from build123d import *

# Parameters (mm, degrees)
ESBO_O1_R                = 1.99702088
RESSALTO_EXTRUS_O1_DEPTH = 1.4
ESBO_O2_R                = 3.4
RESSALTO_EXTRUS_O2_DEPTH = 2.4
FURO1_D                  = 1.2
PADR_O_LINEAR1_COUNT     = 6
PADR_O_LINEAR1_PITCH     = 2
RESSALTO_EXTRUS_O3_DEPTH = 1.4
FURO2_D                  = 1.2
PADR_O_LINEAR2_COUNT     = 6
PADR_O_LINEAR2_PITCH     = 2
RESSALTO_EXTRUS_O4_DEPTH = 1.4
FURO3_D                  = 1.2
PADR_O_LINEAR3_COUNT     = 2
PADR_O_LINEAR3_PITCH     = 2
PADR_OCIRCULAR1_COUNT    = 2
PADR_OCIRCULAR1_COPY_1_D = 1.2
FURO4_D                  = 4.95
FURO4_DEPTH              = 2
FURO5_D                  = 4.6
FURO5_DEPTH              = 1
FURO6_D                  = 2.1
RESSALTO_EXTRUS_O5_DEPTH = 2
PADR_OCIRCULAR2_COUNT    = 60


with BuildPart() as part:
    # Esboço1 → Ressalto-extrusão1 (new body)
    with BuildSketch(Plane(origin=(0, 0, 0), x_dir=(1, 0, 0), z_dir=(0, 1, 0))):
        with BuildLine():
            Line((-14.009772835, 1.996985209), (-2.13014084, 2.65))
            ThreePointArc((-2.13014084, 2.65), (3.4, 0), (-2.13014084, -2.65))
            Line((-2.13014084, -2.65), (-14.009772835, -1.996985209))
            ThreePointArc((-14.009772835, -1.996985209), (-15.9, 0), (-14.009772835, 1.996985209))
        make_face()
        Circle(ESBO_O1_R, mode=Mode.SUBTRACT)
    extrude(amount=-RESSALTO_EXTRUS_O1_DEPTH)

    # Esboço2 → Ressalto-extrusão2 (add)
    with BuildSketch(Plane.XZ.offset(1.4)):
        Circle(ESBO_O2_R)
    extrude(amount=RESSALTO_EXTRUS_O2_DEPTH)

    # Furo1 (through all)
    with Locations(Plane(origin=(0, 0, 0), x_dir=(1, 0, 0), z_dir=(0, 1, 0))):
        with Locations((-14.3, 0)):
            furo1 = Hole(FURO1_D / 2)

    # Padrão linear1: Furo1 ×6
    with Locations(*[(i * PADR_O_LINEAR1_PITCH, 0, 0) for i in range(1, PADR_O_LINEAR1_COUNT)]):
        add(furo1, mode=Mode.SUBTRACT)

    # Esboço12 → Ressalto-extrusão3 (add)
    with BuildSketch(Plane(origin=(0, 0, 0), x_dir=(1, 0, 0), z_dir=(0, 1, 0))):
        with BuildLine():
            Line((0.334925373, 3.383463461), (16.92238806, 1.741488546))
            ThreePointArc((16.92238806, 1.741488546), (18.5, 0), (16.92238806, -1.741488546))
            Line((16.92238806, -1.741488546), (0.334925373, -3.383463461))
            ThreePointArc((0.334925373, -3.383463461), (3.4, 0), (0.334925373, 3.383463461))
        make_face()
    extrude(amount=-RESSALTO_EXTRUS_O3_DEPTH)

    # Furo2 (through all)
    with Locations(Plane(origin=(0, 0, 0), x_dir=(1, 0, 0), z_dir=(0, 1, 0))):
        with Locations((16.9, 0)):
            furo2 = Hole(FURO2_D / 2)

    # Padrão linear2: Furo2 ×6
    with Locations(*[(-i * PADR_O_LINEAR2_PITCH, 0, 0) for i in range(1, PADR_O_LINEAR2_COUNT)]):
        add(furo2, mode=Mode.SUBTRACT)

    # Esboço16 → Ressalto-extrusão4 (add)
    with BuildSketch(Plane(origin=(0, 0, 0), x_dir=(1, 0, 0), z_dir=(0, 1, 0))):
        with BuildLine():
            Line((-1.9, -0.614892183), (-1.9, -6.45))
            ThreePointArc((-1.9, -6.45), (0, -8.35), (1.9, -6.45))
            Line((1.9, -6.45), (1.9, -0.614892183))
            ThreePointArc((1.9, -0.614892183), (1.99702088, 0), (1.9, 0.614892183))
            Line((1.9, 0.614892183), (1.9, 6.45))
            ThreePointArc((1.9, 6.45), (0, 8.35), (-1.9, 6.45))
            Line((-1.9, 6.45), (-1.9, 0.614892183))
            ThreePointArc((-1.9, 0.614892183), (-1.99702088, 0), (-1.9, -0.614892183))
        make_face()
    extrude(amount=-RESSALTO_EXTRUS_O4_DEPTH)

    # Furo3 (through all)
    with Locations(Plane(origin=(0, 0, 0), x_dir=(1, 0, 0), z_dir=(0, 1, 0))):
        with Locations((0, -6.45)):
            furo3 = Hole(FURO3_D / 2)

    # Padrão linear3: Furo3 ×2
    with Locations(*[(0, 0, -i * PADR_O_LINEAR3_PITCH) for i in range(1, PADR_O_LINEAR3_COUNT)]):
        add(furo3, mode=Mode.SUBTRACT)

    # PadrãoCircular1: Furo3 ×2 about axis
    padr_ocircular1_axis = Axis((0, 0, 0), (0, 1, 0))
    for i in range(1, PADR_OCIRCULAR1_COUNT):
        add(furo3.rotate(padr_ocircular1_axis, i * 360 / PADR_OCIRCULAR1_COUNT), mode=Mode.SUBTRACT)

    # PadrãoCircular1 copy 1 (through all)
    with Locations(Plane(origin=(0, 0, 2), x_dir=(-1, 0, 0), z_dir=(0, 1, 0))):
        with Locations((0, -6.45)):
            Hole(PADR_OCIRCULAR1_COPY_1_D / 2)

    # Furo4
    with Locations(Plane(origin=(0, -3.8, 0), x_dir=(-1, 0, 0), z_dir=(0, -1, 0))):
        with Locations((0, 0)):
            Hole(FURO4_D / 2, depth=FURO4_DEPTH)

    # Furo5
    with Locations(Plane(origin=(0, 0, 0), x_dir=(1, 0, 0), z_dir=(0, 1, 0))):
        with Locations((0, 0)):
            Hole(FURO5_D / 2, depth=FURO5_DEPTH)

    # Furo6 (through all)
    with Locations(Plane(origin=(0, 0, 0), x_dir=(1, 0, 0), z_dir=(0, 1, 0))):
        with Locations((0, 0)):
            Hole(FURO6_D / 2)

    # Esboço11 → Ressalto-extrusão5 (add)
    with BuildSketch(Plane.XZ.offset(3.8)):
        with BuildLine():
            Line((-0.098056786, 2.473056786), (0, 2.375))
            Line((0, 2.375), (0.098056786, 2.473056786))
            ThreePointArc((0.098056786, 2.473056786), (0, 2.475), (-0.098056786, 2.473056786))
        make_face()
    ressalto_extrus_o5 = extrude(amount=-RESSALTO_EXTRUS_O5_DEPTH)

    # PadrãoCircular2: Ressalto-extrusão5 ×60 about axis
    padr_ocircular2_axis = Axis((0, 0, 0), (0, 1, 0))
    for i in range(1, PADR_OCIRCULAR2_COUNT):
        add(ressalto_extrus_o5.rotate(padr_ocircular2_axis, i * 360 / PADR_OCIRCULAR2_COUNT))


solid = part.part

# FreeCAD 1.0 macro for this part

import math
import FreeCAD as App
import Part
import Sketcher
Q = App.Units.Quantity

doc = App.newDocument("Part")
body = doc.addObject("PartDesign::Body", "Body")

# Sketch on XZ plane
sketch1 = body.newObject("Sketcher::SketchObject", "Sketch")
sketch1.AttachmentSupport = (doc.getObject("XZ_Plane"), [""])
sketch1.MapMode = "FlatFace"
sketch1.addGeometry(Part.LineSegment(App.Vector(-2.1, -2.6, 0), App.Vector(-14, -2, 0)), False)
sketch1.addGeometry(Part.ArcOfCircle(Part.Circle(App.Vector(-13.9, 0, 0), App.Vector(0, 0, 1), 2), math.radians(93), math.radians(267)), False)
sketch1.addGeometry(Part.LineSegment(App.Vector(-14, 2, 0), App.Vector(-2.1, 2.6, 0)), False)
sketch1.addGeometry(Part.ArcOfCircle(Part.Circle(App.Vector(0, 0, 0), App.Vector(0, 0, 1), 3.4), math.radians(-129), math.radians(129)), False)
sketch1.addGeometry(Part.Circle(App.Vector(0, 0, 0), App.Vector(0, 0, 1), 2), False)
sketch1.addConstraint(Sketcher.Constraint("Tangent", 0, 2, 1, 2))
sketch1.addConstraint(Sketcher.Constraint("Tangent", 1, 1, 2, 1))
sketch1.addConstraint(Sketcher.Constraint("Coincident", 2, 2, 3, 2))
sketch1.addConstraint(Sketcher.Constraint("Coincident", 3, 1, 0, 1))
sketch1.addConstraint(Sketcher.Constraint("Coincident", 3, 3, -1, 1))
sketch1.addConstraint(Sketcher.Constraint("Coincident", 4, 3, -1, 1))
sketch1.addConstraint(Sketcher.Constraint("Symmetric", 0, 2, 1, 1, -1))
sketch1.addConstraint(Sketcher.Constraint("Radius", 1, Q("2 mm")))
sketch1.addConstraint(Sketcher.Constraint("Radius", 3, Q("3.4 mm")))
sketch1.addConstraint(Sketcher.Constraint("DistanceX", 1, 3, -1, 1, Q("13.9 mm")))
sketch1.addConstraint(Sketcher.Constraint("DistanceY", 3, 1, 2, 2, Q("5.3 mm")))
sketch1.addConstraint(Sketcher.Constraint("Diameter", 4, Q("3.994042 mm")))
pad1 = body.newObject("PartDesign::Pad", "Pad")
pad1.Profile = sketch1
pad1.Length = 1.4

# Sketch on XZ plane
sketch2 = body.newObject("Sketcher::SketchObject", "Sketch001")
sketch2.AttachmentSupport = (doc.getObject("XZ_Plane"), [""])
sketch2.MapMode = "FlatFace"
sketch2.AttachmentOffset = App.Placement(App.Vector(0, 0, 1.4), App.Rotation())
sketch2.addGeometry(Part.Circle(App.Vector(0, 0, 0), App.Vector(0, 0, 1), 3.4), False)
sketch2.addConstraint(Sketcher.Constraint("Coincident", 0, 3, -1, 1))
sketch2.addConstraint(Sketcher.Constraint("Diameter", 0, Q("6.8 mm")))
pad2 = body.newObject("PartDesign::Pad", "Pad001")
pad2.Profile = sketch2
pad2.Length = 2.4

# Sketch on XZ plane
sketch3 = body.newObject("Sketcher::SketchObject", "Sketch002")
sketch3.AttachmentSupport = (doc.getObject("XZ_Plane"), [""])
sketch3.MapMode = "FlatFace"
sketch3.addGeometry(Part.Circle(App.Vector(-14.3, 0, 0), App.Vector(0, 0, 1), 0.6), False)
sketch3.addConstraint(Sketcher.Constraint("PointOnObject", 0, 3, -1))
sketch3.addConstraint(Sketcher.Constraint("Diameter", 0, Q("1.2 mm")))
sketch3.addConstraint(Sketcher.Constraint("DistanceX", 0, 3, -1, 1, Q("14.3 mm")))
doc.recompute()
hole = body.newObject("PartDesign::Hole", "Hole")
hole.Profile = sketch3
hole.ThreadType = "None"
hole.Diameter = 1.2
hole.DepthType = "ThroughAll"
hole.Reversed = True
doc.recompute()

linearpattern = body.newObject("PartDesign::LinearPattern", "LinearPattern")
linearpattern.Originals = [hole]
linearpattern.Direction = (doc.getObject("X_Axis"), [""])
linearpattern.Mode = "offset"
linearpattern.Offset = 2
linearpattern.Occurrences = 6
body.Tip = linearpattern

# Sketch on XZ plane
sketch4 = body.newObject("Sketcher::SketchObject", "Sketch003")
sketch4.AttachmentSupport = (doc.getObject("XZ_Plane"), [""])
sketch4.MapMode = "FlatFace"
sketch4.addGeometry(Part.LineSegment(App.Vector(16.9, -1.7, 0), App.Vector(0.3, -3.4, 0)), False)
sketch4.addGeometry(Part.ArcOfCircle(Part.Circle(App.Vector(0, 0, 0), App.Vector(0, 0, 1), 3.4), math.radians(-84), math.radians(84)), False)
sketch4.addGeometry(Part.LineSegment(App.Vector(0.3, 3.4, 0), App.Vector(16.9, 1.7, 0)), False)
sketch4.addGeometry(Part.ArcOfCircle(Part.Circle(App.Vector(16.8, 0, 0), App.Vector(0, 0, 1), 1.8), math.radians(-84), math.radians(84)), False)
sketch4.addConstraint(Sketcher.Constraint("Tangent", 0, 2, 1, 1))
sketch4.addConstraint(Sketcher.Constraint("Tangent", 1, 2, 2, 1))
sketch4.addConstraint(Sketcher.Constraint("Tangent", 2, 2, 3, 2))
sketch4.addConstraint(Sketcher.Constraint("Tangent", 3, 1, 0, 1))
sketch4.addConstraint(Sketcher.Constraint("Coincident", 1, 3, -1, 1))
sketch4.addConstraint(Sketcher.Constraint("PointOnObject", 3, 3, -1))
sketch4.addConstraint(Sketcher.Constraint("Radius", 1, Q("3.4 mm")))
sketch4.addConstraint(Sketcher.Constraint("Radius", 3, Q("1.75 mm")))
sketch4.addConstraint(Sketcher.Constraint("DistanceX", -1, 1, 3, 3, Q("16.75 mm")))
pad3 = body.newObject("PartDesign::Pad", "Pad002")
pad3.Profile = sketch4
pad3.Length = 1.4

# Sketch on XZ plane
sketch5 = body.newObject("Sketcher::SketchObject", "Sketch004")
sketch5.AttachmentSupport = (doc.getObject("XZ_Plane"), [""])
sketch5.MapMode = "FlatFace"
sketch5.addGeometry(Part.Circle(App.Vector(16.9, 0, 0), App.Vector(0, 0, 1), 0.6), False)
sketch5.addConstraint(Sketcher.Constraint("PointOnObject", 0, 3, -1))
sketch5.addConstraint(Sketcher.Constraint("Diameter", 0, Q("1.2 mm")))
sketch5.addConstraint(Sketcher.Constraint("DistanceX", -1, 1, 0, 3, Q("16.9 mm")))
doc.recompute()
hole2 = body.newObject("PartDesign::Hole", "Hole001")
hole2.Profile = sketch5
hole2.ThreadType = "None"
hole2.Diameter = 1.2
hole2.DepthType = "ThroughAll"
hole2.Reversed = True
doc.recompute()

linearpattern2 = body.newObject("PartDesign::LinearPattern", "LinearPattern001")
linearpattern2.Originals = [hole2]
linearpattern2.Direction = (doc.getObject("X_Axis"), [""])
linearpattern2.Mode = "offset"
linearpattern2.Offset = 2
linearpattern2.Occurrences = 6
linearpattern2.Reversed = True
body.Tip = linearpattern2

# Sketch on XZ plane
sketch6 = body.newObject("Sketcher::SketchObject", "Sketch005")
sketch6.AttachmentSupport = (doc.getObject("XZ_Plane"), [""])
sketch6.MapMode = "FlatFace"
sketch6.addGeometry(Part.LineSegment(App.Vector(-1.9, 0.6, 0), App.Vector(-1.9, 6.5, 0)), False)
sketch6.addGeometry(Part.ArcOfCircle(Part.Circle(App.Vector(0, 6.5, 0), App.Vector(0, 0, 1), 1.9), math.radians(0), math.radians(180)), False)
sketch6.addGeometry(Part.LineSegment(App.Vector(1.9, 6.5, 0), App.Vector(1.9, 0.6, 0)), False)
sketch6.addGeometry(Part.ArcOfCircle(Part.Circle(App.Vector(0, 0, 0), App.Vector(0, 0, 1), 2), math.radians(-18), math.radians(18)), False)
sketch6.addGeometry(Part.LineSegment(App.Vector(1.9, -0.6, 0), App.Vector(1.9, -6.5, 0)), False)
sketch6.addGeometry(Part.ArcOfCircle(Part.Circle(App.Vector(0, -6.5, 0), App.Vector(0, 0, 1), 1.9), math.radians(180), math.radians(360)), False)
sketch6.addGeometry(Part.LineSegment(App.Vector(-1.9, -6.5, 0), App.Vector(-1.9, -0.6, 0)), False)
sketch6.addGeometry(Part.ArcOfCircle(Part.Circle(App.Vector(0, 0, 0), App.Vector(0, 0, 1), 2), math.radians(162), math.radians(198)), False)
sketch6.addConstraint(Sketcher.Constraint("Tangent", 0, 2, 1, 2))
sketch6.addConstraint(Sketcher.Constraint("Tangent", 1, 1, 2, 1))
sketch6.addConstraint(Sketcher.Constraint("Coincident", 2, 2, 3, 2))
sketch6.addConstraint(Sketcher.Constraint("Coincident", 3, 1, 4, 1))
sketch6.addConstraint(Sketcher.Constraint("Tangent", 4, 2, 5, 2))
sketch6.addConstraint(Sketcher.Constraint("Tangent", 5, 1, 6, 1))
sketch6.addConstraint(Sketcher.Constraint("Coincident", 6, 2, 7, 2))
sketch6.addConstraint(Sketcher.Constraint("Coincident", 7, 1, 0, 1))
sketch6.addConstraint(Sketcher.Constraint("Vertical", 0))
sketch6.addConstraint(Sketcher.Constraint("Vertical", 2))
sketch6.addConstraint(Sketcher.Constraint("Vertical", 4))
sketch6.addConstraint(Sketcher.Constraint("Vertical", 6))
sketch6.addConstraint(Sketcher.Constraint("Coincident", 3, 3, -1, 1))
sketch6.addConstraint(Sketcher.Constraint("Coincident", 7, 3, -1, 1))
sketch6.addConstraint(Sketcher.Constraint("Equal", 1, 5))
sketch6.addConstraint(Sketcher.Constraint("Equal", 3, 7))
sketch6.addConstraint(Sketcher.Constraint("Symmetric", 1, 3, 5, 3, -1, 1))
sketch6.addConstraint(Sketcher.Constraint("PointOnObject", 1, 3, -2))
sketch6.addConstraint(Sketcher.Constraint("Radius", 1, Q("1.9 mm")))
sketch6.addConstraint(Sketcher.Constraint("DistanceY", 5, 3, 1, 3, Q("12.9 mm")))
sketch6.addConstraint(Sketcher.Constraint("Radius", 3, Q("1.997021 mm")))
pad4 = body.newObject("PartDesign::Pad", "Pad003")
pad4.Profile = sketch6
pad4.Length = 1.4

# Sketch on XZ plane
sketch7 = body.newObject("Sketcher::SketchObject", "Sketch006")
sketch7.AttachmentSupport = (doc.getObject("XZ_Plane"), [""])
sketch7.MapMode = "FlatFace"
sketch7.addGeometry(Part.Circle(App.Vector(0, 6.5, 0), App.Vector(0, 0, 1), 0.6), False)
sketch7.addConstraint(Sketcher.Constraint("PointOnObject", 0, 3, -2))
sketch7.addConstraint(Sketcher.Constraint("Diameter", 0, Q("1.2 mm")))
sketch7.addConstraint(Sketcher.Constraint("DistanceY", -1, 1, 0, 3, Q("6.45 mm")))
doc.recompute()
hole3 = body.newObject("PartDesign::Hole", "Hole002")
hole3.Profile = sketch7
hole3.ThreadType = "None"
hole3.Diameter = 1.2
hole3.DepthType = "ThroughAll"
hole3.Reversed = True
doc.recompute()

linearpattern3 = body.newObject("PartDesign::LinearPattern", "LinearPattern002")
linearpattern3.Originals = [hole3]
linearpattern3.Direction = (doc.getObject("Z_Axis"), [""])
linearpattern3.Mode = "offset"
linearpattern3.Offset = 2
linearpattern3.Occurrences = 2
linearpattern3.Reversed = True
body.Tip = linearpattern3
doc.recompute()

polarpattern = body.newObject("PartDesign::PolarPattern", "PolarPattern")
polarpattern.Originals = [hole3]
polarpattern.Axis = (doc.getObject("Y_Axis"), [""])
polarpattern.Angle = 360
polarpattern.Occurrences = 2
body.Tip = polarpattern

# Sketch on XZ plane
sketch8 = body.newObject("Sketcher::SketchObject", "Sketch007")
sketch8.AttachmentSupport = (doc.getObject("XZ_Plane"), [""])
sketch8.MapMode = "FlatFace"
sketch8.addGeometry(Part.Circle(App.Vector(0, -4.5, 0), App.Vector(0, 0, 1), 0.6), False)
sketch8.addConstraint(Sketcher.Constraint("PointOnObject", 0, 3, -2))
sketch8.addConstraint(Sketcher.Constraint("Diameter", 0, Q("1.2 mm")))
sketch8.addConstraint(Sketcher.Constraint("DistanceY", 0, 3, -1, 1, Q("4.45 mm")))
doc.recompute()
hole4 = body.newObject("PartDesign::Hole", "Hole003")
hole4.Profile = sketch8
hole4.ThreadType = "None"
hole4.Diameter = 1.2
hole4.DepthType = "ThroughAll"
hole4.Reversed = True

# Sketch on XZ plane
sketch9 = body.newObject("Sketcher::SketchObject", "Sketch008")
sketch9.AttachmentSupport = (doc.getObject("XZ_Plane"), [""])
sketch9.MapMode = "FlatFace"
sketch9.AttachmentOffset = App.Placement(App.Vector(0, 0, 3.8), App.Rotation())
sketch9.addGeometry(Part.Circle(App.Vector(0, 0, 0), App.Vector(0, 0, 1), 2.5), False)
sketch9.addConstraint(Sketcher.Constraint("Coincident", 0, 3, -1, 1))
sketch9.addConstraint(Sketcher.Constraint("Diameter", 0, Q("4.95 mm")))
doc.recompute()
hole5 = body.newObject("PartDesign::Hole", "Hole004")
hole5.Profile = sketch9
hole5.ThreadType = "None"
hole5.Diameter = 4.95
hole5.DepthType = "Dimension"
hole5.Depth = 2
hole5.DrillPoint = "Flat"

# Sketch on XZ plane
sketch10 = body.newObject("Sketcher::SketchObject", "Sketch009")
sketch10.AttachmentSupport = (doc.getObject("XZ_Plane"), [""])
sketch10.MapMode = "FlatFace"
sketch10.addGeometry(Part.Circle(App.Vector(0, 0, 0), App.Vector(0, 0, 1), 2.3), False)
sketch10.addConstraint(Sketcher.Constraint("Coincident", 0, 3, -1, 1))
sketch10.addConstraint(Sketcher.Constraint("Diameter", 0, Q("4.6 mm")))
doc.recompute()
hole6 = body.newObject("PartDesign::Hole", "Hole005")
hole6.Profile = sketch10
hole6.ThreadType = "None"
hole6.Diameter = 4.6
hole6.DepthType = "Dimension"
hole6.Depth = 1
hole6.DrillPoint = "Flat"
hole6.Reversed = True

# Sketch on XZ plane
sketch11 = body.newObject("Sketcher::SketchObject", "Sketch010")
sketch11.AttachmentSupport = (doc.getObject("XZ_Plane"), [""])
sketch11.MapMode = "FlatFace"
sketch11.addGeometry(Part.Circle(App.Vector(0, 0, 0), App.Vector(0, 0, 1), 1.1), False)
sketch11.addConstraint(Sketcher.Constraint("Coincident", 0, 3, -1, 1))
sketch11.addConstraint(Sketcher.Constraint("Diameter", 0, Q("2.1 mm")))
doc.recompute()
hole7 = body.newObject("PartDesign::Hole", "Hole006")
hole7.Profile = sketch11
hole7.ThreadType = "None"
hole7.Diameter = 2.1
hole7.DepthType = "ThroughAll"
hole7.Reversed = True

# Sketch on XZ plane
sketch12 = body.newObject("Sketcher::SketchObject", "Sketch011")
sketch12.AttachmentSupport = (doc.getObject("XZ_Plane"), [""])
sketch12.MapMode = "FlatFace"
sketch12.AttachmentOffset = App.Placement(App.Vector(0, 0, 3.8), App.Rotation())
sketch12.addGeometry(Part.LineSegment(App.Vector(-0.1, 2.47, 0), App.Vector(0, 2.38, 0)), False)
sketch12.addGeometry(Part.LineSegment(App.Vector(0, 2.38, 0), App.Vector(0.1, 2.47, 0)), False)
sketch12.addGeometry(Part.ArcOfCircle(Part.Circle(App.Vector(0, 0, 0), App.Vector(0, 0, 1), 2.48), math.radians(87.73), math.radians(92.27)), False)
sketch12.addConstraint(Sketcher.Constraint("Coincident", 0, 2, 1, 1))
sketch12.addConstraint(Sketcher.Constraint("Coincident", 1, 2, 2, 1))
sketch12.addConstraint(Sketcher.Constraint("Coincident", 2, 2, 0, 1))
sketch12.addConstraint(Sketcher.Constraint("Coincident", 2, 3, -1, 1))
sketch12.addConstraint(Sketcher.Constraint("PointOnObject", 0, 2, -2))
sketch12.addConstraint(Sketcher.Constraint("Perpendicular", 0, 1))
sketch12.addConstraint(Sketcher.Constraint("Horizontal", 1, 2, 2, 2))
sketch12.addConstraint(Sketcher.Constraint("Radius", 2, Q("2.475 mm")))
sketch12.addConstraint(Sketcher.Constraint("DistanceY", -1, 1, 0, 2, Q("2.375 mm")))
pad5 = body.newObject("PartDesign::Pad", "Pad004")
pad5.Profile = sketch12
pad5.Length = 2
pad5.Reversed = True
doc.recompute()

polarpattern2 = body.newObject("PartDesign::PolarPattern", "PolarPattern001")
polarpattern2.Originals = [pad5]
polarpattern2.Axis = (doc.getObject("Y_Axis"), [""])
polarpattern2.Angle = 360
polarpattern2.Occurrences = 60
body.Tip = polarpattern2

doc.recompute()
